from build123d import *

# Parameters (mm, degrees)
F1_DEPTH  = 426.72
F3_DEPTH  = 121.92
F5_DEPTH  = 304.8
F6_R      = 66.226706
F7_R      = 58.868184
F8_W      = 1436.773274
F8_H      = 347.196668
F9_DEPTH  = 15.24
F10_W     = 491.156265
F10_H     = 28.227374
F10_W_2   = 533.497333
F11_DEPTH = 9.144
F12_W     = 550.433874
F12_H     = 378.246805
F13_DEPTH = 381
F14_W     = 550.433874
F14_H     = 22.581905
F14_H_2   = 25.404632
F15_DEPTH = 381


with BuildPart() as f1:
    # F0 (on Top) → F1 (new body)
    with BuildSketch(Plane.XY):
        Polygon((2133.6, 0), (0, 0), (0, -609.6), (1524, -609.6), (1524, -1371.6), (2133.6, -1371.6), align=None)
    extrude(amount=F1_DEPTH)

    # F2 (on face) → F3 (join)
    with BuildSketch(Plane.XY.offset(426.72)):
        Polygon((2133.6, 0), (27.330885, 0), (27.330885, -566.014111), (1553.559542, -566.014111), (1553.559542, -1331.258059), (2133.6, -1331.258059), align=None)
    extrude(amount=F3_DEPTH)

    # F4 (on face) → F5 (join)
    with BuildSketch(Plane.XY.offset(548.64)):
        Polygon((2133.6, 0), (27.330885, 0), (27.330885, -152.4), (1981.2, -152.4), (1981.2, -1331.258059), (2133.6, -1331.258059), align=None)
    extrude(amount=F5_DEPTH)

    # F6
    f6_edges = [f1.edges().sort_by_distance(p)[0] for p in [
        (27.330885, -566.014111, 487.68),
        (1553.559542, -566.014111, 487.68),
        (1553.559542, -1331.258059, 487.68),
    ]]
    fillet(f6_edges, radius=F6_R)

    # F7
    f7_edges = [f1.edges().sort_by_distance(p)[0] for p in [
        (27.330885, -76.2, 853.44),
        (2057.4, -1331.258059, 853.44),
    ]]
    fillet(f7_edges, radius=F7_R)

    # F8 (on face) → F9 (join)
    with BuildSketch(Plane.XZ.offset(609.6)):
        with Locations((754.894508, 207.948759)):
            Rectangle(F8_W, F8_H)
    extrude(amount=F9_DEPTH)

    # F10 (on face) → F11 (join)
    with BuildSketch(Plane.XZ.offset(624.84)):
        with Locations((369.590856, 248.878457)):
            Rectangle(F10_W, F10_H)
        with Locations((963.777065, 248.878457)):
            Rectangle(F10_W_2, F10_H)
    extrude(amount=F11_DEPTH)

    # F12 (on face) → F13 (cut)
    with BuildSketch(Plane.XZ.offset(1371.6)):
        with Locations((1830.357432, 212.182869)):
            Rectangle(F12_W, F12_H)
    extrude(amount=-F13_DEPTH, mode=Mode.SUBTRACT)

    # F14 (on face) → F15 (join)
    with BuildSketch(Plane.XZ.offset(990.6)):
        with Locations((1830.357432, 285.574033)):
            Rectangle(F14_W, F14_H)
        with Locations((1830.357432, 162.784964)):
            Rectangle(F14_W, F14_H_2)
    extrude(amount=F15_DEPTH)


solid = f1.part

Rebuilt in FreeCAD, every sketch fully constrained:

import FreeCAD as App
import Part
import Sketcher
Q = App.Units.Quantity


def edges_at(feature, points):
    """Names of the edges that pass closest to the given points."""
    edges = feature.Shape.Edges
    near = lambda p: min(range(len(edges)), key=lambda i: edges[i].distToShape(Part.Vertex(*p))[0])
    return sorted({f"Edge{near(p) + 1}" for p in points})


def add_polygon(sketch, points):
    """Adds a closed chain of lines whose ends are joined by coincident constraints."""
    first, n = sketch.GeometryCount, len(points)
    for a, b in zip(points, points[1:] + points[:1]):
        sketch.addGeometry(Part.LineSegment(App.Vector(*a, 0), App.Vector(*b, 0)), False)
    for i in range(n):
        sketch.addConstraint(Sketcher.Constraint("Coincident", first + i, 2, first + (i + 1) % n, 1))

doc = App.newDocument("Part")
body = doc.addObject("PartDesign::Body", "Body")

# Sketch on XY plane
sketch1 = doc.addObject("Sketcher::SketchObject", "Sketch")
body.addObject(sketch1)
sketch1.AttachmentSupport = (doc.XY_Plane, [""])
sketch1.MapMode = "FlatFace"
add_polygon(sketch1, [(2134, 0), (0, 0), (0, -610), (1524, -610), (1524, -1372), (2134, -1372)])  # lines 0-5
sketch1.addConstraint(Sketcher.Constraint("Horizontal", 0))
sketch1.addConstraint(Sketcher.Constraint("Vertical", 1))
sketch1.addConstraint(Sketcher.Constraint("Horizontal", 2))
sketch1.addConstraint(Sketcher.Constraint("Vertical", 3))
sketch1.addConstraint(Sketcher.Constraint("Horizontal", 4))
sketch1.addConstraint(Sketcher.Constraint("Vertical", 5))
sketch1.addConstraint(Sketcher.Constraint("Coincident", 0, 2, -1, 1))
sketch1.addConstraint(Sketcher.Constraint("Equal", 4, 1))
sketch1.addConstraint(Sketcher.Constraint("DistanceX", 0, 2, 0, 1, Q("84 in")))
sketch1.addConstraint(Sketcher.Constraint("DistanceX", 2, 1, 2, 2, Q("60 in")))
sketch1.addConstraint(Sketcher.Constraint("DistanceY", 3, 2, 3, 1, Q("30 in")))
pad1 = doc.addObject("PartDesign::Pad", "Pad")
body.addObject(pad1)
pad1.Profile = sketch1
pad1.Length = Q("16.8 in")

# Sketch on XY plane
sketch2 = doc.addObject("Sketcher::SketchObject", "Sketch001")
body.addObject(sketch2)
sketch2.AttachmentSupport = (doc.XY_Plane, [""])
sketch2.MapMode = "FlatFace"
sketch2.AttachmentOffset = App.Placement(App.Vector(0, 0, 16.8 * 25.4), App.Rotation())
add_polygon(sketch2, [(2134, 0), (27, 0), (27, -566), (1554, -566), (1554, -1331), (2134, -1331)])  # lines 0-5
sketch2.addConstraint(Sketcher.Constraint("Horizontal", 0))
sketch2.addConstraint(Sketcher.Constraint("Vertical", 1))
sketch2.addConstraint(Sketcher.Constraint("Horizontal", 2))
sketch2.addConstraint(Sketcher.Constraint("Vertical", 3))
sketch2.addConstraint(Sketcher.Constraint("Horizontal", 4))
sketch2.addConstraint(Sketcher.Constraint("Vertical", 5))
sketch2.addConstraint(Sketcher.Constraint("PointOnObject", 0, 2, -1))
sketch2.addConstraint(Sketcher.Constraint("DistanceX", -1, 1, 4, 2, Q("84 in")))
sketch2.addConstraint(Sketcher.Constraint("DistanceY", 1, 2, 1, 1, 566.014111))
sketch2.addConstraint(Sketcher.Constraint("DistanceY", 3, 2, 3, 1, 765.243948))
sketch2.addConstraint(Sketcher.Constraint("DistanceX", 0, 2, 0, 1, 2106.269115))
sketch2.addConstraint(Sketcher.Constraint("DistanceX", 2, 1, 2, 2, 1526.228657))
pad2 = doc.addObject("PartDesign::Pad", "Pad001")
body.addObject(pad2)
pad2.Profile = sketch2
pad2.Length = Q("4.8 in")

# Sketch on XY plane
sketch3 = doc.addObject("Sketcher::SketchObject", "Sketch002")
body.addObject(sketch3)
sketch3.AttachmentSupport = (doc.XY_Plane, [""])
sketch3.MapMode = "FlatFace"
sketch3.AttachmentOffset = App.Placement(App.Vector(0, 0, 21.6 * 25.4), App.Rotation())
add_polygon(sketch3, [(2134, 0), (27, 0), (27, -152), (1981, -152), (1981, -1331), (2134, -1331)])  # lines 0-5
sketch3.addConstraint(Sketcher.Constraint("Horizontal", 0))
sketch3.addConstraint(Sketcher.Constraint("Vertical", 1))
sketch3.addConstraint(Sketcher.Constraint("Horizontal", 2))
sketch3.addConstraint(Sketcher.Constraint("Vertical", 3))
sketch3.addConstraint(Sketcher.Constraint("Horizontal", 4))
sketch3.addConstraint(Sketcher.Constraint("Vertical", 5))
sketch3.addConstraint(Sketcher.Constraint("PointOnObject", 0, 2, -1))
sketch3.addConstraint(Sketcher.Constraint("Equal", 4, 1))
sketch3.addConstraint(Sketcher.Constraint("DistanceX", 4, 1, 4, 2, Q("6 in")))
sketch3.addConstraint(Sketcher.Constraint("DistanceX", -1, 1, 2, 2, Q("78 in")))
sketch3.addConstraint(Sketcher.Constraint("DistanceY", 3, 2, 3, 1, 1178.858059))
sketch3.addConstraint(Sketcher.Constraint("DistanceX", 0, 2, 0, 1, 2106.269115))
pad3 = doc.addObject("PartDesign::Pad", "Pad002")
body.addObject(pad3)
pad3.Profile = sketch3
pad3.Length = Q("12 in")
doc.recompute()

fillet = doc.addObject("PartDesign::Fillet", "Fillet")
body.addObject(fillet)
fillet.Base = (pad3, edges_at(pad3, [(27.331, -566.014, 487.68), (1553.56, -566.014, 487.68), (1553.56, -1331.258, 487.68)]))
fillet.Radius = 66.226706
doc.recompute()

fillet2 = doc.addObject("PartDesign::Fillet", "Fillet001")
body.addObject(fillet2)
fillet2.Base = (fillet, edges_at(fillet, [(27.331, -76.2, 853.44), (2057.4, -1331.258, 853.44)]))
fillet2.Radius = 58.868184

# Sketch on XZ plane
sketch4 = doc.addObject("Sketcher::SketchObject", "Sketch003")
body.addObject(sketch4)
sketch4.AttachmentSupport = (doc.XZ_Plane, [""])
sketch4.MapMode = "FlatFace"
sketch4.AttachmentOffset = App.Placement(App.Vector(0, 0, 24 * 25.4), App.Rotation())
add_polygon(sketch4, [(37, 382), (37, 34), (1473, 34), (1473, 382)])  # lines 0-3
sketch4.addConstraint(Sketcher.Constraint("Vertical", 0))
sketch4.addConstraint(Sketcher.Constraint("Horizontal", 1))
sketch4.addConstraint(Sketcher.Constraint("Vertical", 2))
sketch4.addConstraint(Sketcher.Constraint("Horizontal", 3))
sketch4.addConstraint(Sketcher.Constraint("DistanceY", 0, 2, 0, 1, 347.196668))
sketch4.addConstraint(Sketcher.Constraint("DistanceX", 1, 1, 1, 2, 1436.773274))
sketch4.addConstraint(Sketcher.Constraint("DistanceX", -1, 1, 0, 2, 36.507871))
sketch4.addConstraint(Sketcher.Constraint("DistanceY", -1, 1, 0, 2, 34.350425))
pad4 = doc.addObject("PartDesign::Pad", "Pad003")
body.addObject(pad4)
pad4.Profile = sketch4
pad4.Length = Q("0.6 in")

# Sketch on XZ plane
sketch5 = doc.addObject("Sketcher::SketchObject", "Sketch004")
body.addObject(sketch5)
sketch5.AttachmentSupport = (doc.XZ_Plane, [""])
sketch5.MapMode = "FlatFace"
sketch5.AttachmentOffset = App.Placement(App.Vector(0, 0, 24.6 * 25.4), App.Rotation())
add_polygon(sketch5, [(124, 263), (124, 235), (615, 235), (615, 263)])  # lines 0-3
add_polygon(sketch5, [(697, 263), (697, 235), (1231, 235), (1231, 263)])  # lines 4-7
sketch5.addConstraint(Sketcher.Constraint("Vertical", 0))
sketch5.addConstraint(Sketcher.Constraint("Horizontal", 1))
sketch5.addConstraint(Sketcher.Constraint("Vertical", 2))
sketch5.addConstraint(Sketcher.Constraint("Horizontal", 3))
sketch5.addConstraint(Sketcher.Constraint("Vertical", 4))
sketch5.addConstraint(Sketcher.Constraint("Horizontal", 5))
sketch5.addConstraint(Sketcher.Constraint("Vertical", 6))
sketch5.addConstraint(Sketcher.Constraint("Horizontal", 7))
sketch5.addConstraint(Sketcher.Constraint("Horizontal", 1, 2, 4, 2))
sketch5.addConstraint(Sketcher.Constraint("Horizontal", 3, 2, 6, 2))
sketch5.addConstraint(Sketcher.Constraint("DistanceX", -1, 1, 4, 2, 697.028398))
sketch5.addConstraint(Sketcher.Constraint("DistanceX", 1, 1, 1, 2, 491.156265))
sketch5.addConstraint(Sketcher.Constraint("DistanceX", 5, 1, 5, 2, 533.497333))
sketch5.addConstraint(Sketcher.Constraint("DistanceY", 0, 2, 0, 1, 28.227374))
sketch5.addConstraint(Sketcher.Constraint("DistanceY", -1, 1, 0, 2, 234.76477))
sketch5.addConstraint(Sketcher.Constraint("DistanceX", -1, 1, 1, 2, 615.168988))
pad5 = doc.addObject("PartDesign::Pad", "Pad004")
body.addObject(pad5)
pad5.Profile = sketch5
pad5.Length = Q("0.36 in")

# Sketch on XZ plane
sketch6 = doc.addObject("Sketcher::SketchObject", "Sketch005")
body.addObject(sketch6)
sketch6.AttachmentSupport = (doc.XZ_Plane, [""])
sketch6.MapMode = "FlatFace"
sketch6.AttachmentOffset = App.Placement(App.Vector(0, 0, 54 * 25.4), App.Rotation())
add_polygon(sketch6, [(1555, 401), (1555, 23), (2106, 23), (2106, 401)])  # lines 0-3
sketch6.addConstraint(Sketcher.Constraint("Vertical", 0))
sketch6.addConstraint(Sketcher.Constraint("Horizontal", 1))
sketch6.addConstraint(Sketcher.Constraint("Vertical", 2))
sketch6.addConstraint(Sketcher.Constraint("Horizontal", 3))
sketch6.addConstraint(Sketcher.Constraint("DistanceX", 1, 1, 1, 2, 550.433874))
sketch6.addConstraint(Sketcher.Constraint("DistanceY", 0, 2, 0, 1, 378.246805))
sketch6.addConstraint(Sketcher.Constraint("DistanceX", -1, 1, 1, 2, 2105.574369))
sketch6.addConstraint(Sketcher.Constraint("DistanceY", -1, 1, 2, 2, 401.306271))
pocket1 = doc.addObject("PartDesign::Pocket", "Pocket")
body.addObject(pocket1)
pocket1.Profile = sketch6
pocket1.Length = Q("15 in")

# Sketch on XZ plane
sketch7 = doc.addObject("Sketcher::SketchObject", "Sketch006")
body.addObject(sketch7)
sketch7.AttachmentSupport = (doc.XZ_Plane, [""])
sketch7.MapMode = "FlatFace"
sketch7.AttachmentOffset = App.Placement(App.Vector(0, 0, 39 * 25.4), App.Rotation())
add_polygon(sketch7, [(1555, 297), (1555, 274), (2106, 274), (2106, 297)])  # lines 0-3
add_polygon(sketch7, [(1555, 175), (1555, 150), (2106, 150), (2106, 175)])  # lines 4-7
sketch7.addConstraint(Sketcher.Constraint("Vertical", 0))
sketch7.addConstraint(Sketcher.Constraint("Horizontal", 1))
sketch7.addConstraint(Sketcher.Constraint("Vertical", 2))
sketch7.addConstraint(Sketcher.Constraint("Horizontal", 3))
sketch7.addConstraint(Sketcher.Constraint("Vertical", 4))
sketch7.addConstraint(Sketcher.Constraint("Horizontal", 5))
sketch7.addConstraint(Sketcher.Constraint("Vertical", 6))
sketch7.addConstraint(Sketcher.Constraint("Horizontal", 7))
sketch7.addConstraint(Sketcher.Constraint("Vertical", 3, 2, 4, 2))
sketch7.addConstraint(Sketcher.Constraint("Vertical", 2, 2, 5, 2))
sketch7.addConstraint(Sketcher.Constraint("DistanceY", 4, 2, 4, 1, 25.404632))
sketch7.addConstraint(Sketcher.Constraint("DistanceY", 6, 2, 1, 2, 98.7958))
sketch7.addConstraint(Sketcher.Constraint("DistanceX", 1, 1, 1, 2, 550.433874))
sketch7.addConstraint(Sketcher.Constraint("DistanceY", 0, 2, 0, 1, 22.581905))
sketch7.addConstraint(Sketcher.Constraint("DistanceY", -1, 1, 0, 2, 274.28308))
sketch7.addConstraint(Sketcher.Constraint("DistanceX", -1, 1, 1, 2, 2105.574369))
pad6 = doc.addObject("PartDesign::Pad", "Pad005")
body.addObject(pad6)
pad6.Profile = sketch7
pad6.Length = Q("15 in")

doc.recompute()
